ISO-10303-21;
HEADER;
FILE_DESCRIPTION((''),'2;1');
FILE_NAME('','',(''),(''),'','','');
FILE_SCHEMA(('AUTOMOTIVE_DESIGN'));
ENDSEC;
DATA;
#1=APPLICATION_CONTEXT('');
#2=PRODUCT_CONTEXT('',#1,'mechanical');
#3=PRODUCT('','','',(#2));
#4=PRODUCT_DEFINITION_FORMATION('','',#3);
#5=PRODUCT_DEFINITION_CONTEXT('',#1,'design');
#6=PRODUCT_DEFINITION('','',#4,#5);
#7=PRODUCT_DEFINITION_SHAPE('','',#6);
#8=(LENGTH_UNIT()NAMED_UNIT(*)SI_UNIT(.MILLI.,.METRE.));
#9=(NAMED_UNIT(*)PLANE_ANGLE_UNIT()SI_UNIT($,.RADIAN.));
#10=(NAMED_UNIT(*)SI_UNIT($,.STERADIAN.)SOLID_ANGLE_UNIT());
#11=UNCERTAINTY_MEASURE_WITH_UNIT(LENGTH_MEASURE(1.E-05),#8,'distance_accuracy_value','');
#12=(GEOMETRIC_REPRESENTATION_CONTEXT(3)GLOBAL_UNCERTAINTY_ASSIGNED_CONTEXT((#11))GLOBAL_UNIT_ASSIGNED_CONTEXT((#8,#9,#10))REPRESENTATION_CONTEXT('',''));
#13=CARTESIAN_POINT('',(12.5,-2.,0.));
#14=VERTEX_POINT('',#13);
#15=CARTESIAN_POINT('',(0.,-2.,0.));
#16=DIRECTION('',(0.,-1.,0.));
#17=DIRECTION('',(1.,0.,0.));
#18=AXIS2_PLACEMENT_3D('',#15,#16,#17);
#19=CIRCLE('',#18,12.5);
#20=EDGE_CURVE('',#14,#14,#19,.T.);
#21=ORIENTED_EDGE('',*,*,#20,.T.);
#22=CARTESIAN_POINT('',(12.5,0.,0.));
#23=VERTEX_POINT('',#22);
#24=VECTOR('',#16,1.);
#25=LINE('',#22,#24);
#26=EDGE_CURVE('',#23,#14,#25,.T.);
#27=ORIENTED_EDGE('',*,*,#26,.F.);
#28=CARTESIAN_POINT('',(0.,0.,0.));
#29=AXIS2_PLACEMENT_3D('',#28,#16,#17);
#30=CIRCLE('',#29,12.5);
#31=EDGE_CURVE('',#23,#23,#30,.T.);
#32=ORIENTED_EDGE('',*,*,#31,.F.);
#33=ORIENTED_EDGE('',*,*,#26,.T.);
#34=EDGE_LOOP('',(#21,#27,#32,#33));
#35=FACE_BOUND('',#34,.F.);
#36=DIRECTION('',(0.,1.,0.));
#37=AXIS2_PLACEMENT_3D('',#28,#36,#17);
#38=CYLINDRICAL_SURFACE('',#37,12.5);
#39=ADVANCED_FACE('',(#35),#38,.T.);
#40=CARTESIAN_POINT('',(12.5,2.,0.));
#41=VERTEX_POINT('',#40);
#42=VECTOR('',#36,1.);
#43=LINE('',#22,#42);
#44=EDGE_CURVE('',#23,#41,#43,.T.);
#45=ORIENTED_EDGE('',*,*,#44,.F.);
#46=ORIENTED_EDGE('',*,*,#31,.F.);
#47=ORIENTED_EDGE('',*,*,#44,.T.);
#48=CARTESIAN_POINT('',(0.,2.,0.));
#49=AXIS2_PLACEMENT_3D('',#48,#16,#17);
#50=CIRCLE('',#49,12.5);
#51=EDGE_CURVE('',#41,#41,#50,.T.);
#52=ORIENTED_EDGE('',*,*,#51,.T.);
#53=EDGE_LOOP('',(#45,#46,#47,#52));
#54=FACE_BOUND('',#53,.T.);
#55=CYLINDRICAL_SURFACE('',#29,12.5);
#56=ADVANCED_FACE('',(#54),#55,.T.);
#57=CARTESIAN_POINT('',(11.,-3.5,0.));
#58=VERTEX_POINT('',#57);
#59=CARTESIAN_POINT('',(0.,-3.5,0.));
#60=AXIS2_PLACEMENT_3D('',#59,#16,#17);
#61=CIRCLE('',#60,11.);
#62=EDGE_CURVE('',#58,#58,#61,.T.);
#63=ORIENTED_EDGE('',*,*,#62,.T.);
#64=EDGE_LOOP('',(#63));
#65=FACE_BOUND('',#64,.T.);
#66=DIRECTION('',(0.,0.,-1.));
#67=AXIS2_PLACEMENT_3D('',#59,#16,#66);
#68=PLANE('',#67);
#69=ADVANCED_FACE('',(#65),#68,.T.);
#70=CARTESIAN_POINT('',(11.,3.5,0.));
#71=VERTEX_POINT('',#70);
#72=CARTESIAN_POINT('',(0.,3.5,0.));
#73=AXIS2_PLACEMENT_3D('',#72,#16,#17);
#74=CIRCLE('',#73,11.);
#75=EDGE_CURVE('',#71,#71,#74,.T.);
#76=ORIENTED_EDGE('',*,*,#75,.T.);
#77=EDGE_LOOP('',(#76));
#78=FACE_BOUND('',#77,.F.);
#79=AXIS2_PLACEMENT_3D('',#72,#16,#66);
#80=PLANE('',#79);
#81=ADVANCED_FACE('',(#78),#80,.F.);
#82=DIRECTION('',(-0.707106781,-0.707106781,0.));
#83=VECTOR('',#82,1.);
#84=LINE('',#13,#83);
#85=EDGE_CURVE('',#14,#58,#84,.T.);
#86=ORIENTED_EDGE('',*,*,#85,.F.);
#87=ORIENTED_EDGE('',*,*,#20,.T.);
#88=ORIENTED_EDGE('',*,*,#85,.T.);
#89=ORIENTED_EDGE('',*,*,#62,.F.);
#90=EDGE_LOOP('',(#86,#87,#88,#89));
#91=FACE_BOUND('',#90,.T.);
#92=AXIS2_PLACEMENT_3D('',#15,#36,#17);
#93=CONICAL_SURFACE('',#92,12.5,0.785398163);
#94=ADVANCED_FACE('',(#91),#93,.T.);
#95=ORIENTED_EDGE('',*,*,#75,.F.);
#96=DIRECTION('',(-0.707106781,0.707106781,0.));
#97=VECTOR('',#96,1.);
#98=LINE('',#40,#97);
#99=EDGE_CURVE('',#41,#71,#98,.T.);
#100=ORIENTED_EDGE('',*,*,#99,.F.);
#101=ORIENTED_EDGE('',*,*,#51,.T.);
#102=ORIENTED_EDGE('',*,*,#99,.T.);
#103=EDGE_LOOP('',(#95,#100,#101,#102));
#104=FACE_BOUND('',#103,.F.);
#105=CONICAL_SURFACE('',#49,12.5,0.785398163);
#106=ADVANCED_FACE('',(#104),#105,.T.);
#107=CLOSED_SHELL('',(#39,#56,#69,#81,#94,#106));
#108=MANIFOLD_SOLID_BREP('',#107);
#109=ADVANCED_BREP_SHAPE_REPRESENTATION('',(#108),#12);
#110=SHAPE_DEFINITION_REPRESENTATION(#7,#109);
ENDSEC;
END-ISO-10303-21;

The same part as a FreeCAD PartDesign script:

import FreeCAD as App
import Part
import Sketcher
Q = App.Units.Quantity


def edges_at(feature, points):
    """Names of the edges that pass closest to the given points."""
    edges = feature.Shape.Edges
    near = lambda p: min(range(len(edges)), key=lambda i: edges[i].distToShape(Part.Vertex(*p))[0])
    return sorted({f"Edge{near(p) + 1}" for p in points})

doc = App.newDocument("Part")
body = doc.addObject("PartDesign::Body", "Body")

sketch1 = body.newObject("Sketcher::SketchObject", "Sketch")
sketch1.AttachmentSupport = (doc.getObject("XZ_Plane"), [""])
sketch1.MapMode = "FlatFace"
sketch1.addGeometry(Part.Circle(App.Vector(0, 0, 0), App.Vector(0, 0, 1), 12), False)
sketch1.addConstraint(Sketcher.Constraint("Coincident", 0, 3, -1, 1))
sketch1.addConstraint(Sketcher.Constraint("Diameter", 0, Q("25 mm")))
pad1 = body.newObject("PartDesign::Pad", "Pad")
pad1.Profile = sketch1
pad1.Length = 7
pad1.Midplane = True
doc.recompute()

chamfer = body.newObject("PartDesign::Chamfer", "Chamfer")
chamfer.Base = (pad1, edges_at(pad1, [(-12.5, 3.5, 0), (-12.5, -3.5, 0)]))
chamfer.Size = 1.5

doc.recompute()
